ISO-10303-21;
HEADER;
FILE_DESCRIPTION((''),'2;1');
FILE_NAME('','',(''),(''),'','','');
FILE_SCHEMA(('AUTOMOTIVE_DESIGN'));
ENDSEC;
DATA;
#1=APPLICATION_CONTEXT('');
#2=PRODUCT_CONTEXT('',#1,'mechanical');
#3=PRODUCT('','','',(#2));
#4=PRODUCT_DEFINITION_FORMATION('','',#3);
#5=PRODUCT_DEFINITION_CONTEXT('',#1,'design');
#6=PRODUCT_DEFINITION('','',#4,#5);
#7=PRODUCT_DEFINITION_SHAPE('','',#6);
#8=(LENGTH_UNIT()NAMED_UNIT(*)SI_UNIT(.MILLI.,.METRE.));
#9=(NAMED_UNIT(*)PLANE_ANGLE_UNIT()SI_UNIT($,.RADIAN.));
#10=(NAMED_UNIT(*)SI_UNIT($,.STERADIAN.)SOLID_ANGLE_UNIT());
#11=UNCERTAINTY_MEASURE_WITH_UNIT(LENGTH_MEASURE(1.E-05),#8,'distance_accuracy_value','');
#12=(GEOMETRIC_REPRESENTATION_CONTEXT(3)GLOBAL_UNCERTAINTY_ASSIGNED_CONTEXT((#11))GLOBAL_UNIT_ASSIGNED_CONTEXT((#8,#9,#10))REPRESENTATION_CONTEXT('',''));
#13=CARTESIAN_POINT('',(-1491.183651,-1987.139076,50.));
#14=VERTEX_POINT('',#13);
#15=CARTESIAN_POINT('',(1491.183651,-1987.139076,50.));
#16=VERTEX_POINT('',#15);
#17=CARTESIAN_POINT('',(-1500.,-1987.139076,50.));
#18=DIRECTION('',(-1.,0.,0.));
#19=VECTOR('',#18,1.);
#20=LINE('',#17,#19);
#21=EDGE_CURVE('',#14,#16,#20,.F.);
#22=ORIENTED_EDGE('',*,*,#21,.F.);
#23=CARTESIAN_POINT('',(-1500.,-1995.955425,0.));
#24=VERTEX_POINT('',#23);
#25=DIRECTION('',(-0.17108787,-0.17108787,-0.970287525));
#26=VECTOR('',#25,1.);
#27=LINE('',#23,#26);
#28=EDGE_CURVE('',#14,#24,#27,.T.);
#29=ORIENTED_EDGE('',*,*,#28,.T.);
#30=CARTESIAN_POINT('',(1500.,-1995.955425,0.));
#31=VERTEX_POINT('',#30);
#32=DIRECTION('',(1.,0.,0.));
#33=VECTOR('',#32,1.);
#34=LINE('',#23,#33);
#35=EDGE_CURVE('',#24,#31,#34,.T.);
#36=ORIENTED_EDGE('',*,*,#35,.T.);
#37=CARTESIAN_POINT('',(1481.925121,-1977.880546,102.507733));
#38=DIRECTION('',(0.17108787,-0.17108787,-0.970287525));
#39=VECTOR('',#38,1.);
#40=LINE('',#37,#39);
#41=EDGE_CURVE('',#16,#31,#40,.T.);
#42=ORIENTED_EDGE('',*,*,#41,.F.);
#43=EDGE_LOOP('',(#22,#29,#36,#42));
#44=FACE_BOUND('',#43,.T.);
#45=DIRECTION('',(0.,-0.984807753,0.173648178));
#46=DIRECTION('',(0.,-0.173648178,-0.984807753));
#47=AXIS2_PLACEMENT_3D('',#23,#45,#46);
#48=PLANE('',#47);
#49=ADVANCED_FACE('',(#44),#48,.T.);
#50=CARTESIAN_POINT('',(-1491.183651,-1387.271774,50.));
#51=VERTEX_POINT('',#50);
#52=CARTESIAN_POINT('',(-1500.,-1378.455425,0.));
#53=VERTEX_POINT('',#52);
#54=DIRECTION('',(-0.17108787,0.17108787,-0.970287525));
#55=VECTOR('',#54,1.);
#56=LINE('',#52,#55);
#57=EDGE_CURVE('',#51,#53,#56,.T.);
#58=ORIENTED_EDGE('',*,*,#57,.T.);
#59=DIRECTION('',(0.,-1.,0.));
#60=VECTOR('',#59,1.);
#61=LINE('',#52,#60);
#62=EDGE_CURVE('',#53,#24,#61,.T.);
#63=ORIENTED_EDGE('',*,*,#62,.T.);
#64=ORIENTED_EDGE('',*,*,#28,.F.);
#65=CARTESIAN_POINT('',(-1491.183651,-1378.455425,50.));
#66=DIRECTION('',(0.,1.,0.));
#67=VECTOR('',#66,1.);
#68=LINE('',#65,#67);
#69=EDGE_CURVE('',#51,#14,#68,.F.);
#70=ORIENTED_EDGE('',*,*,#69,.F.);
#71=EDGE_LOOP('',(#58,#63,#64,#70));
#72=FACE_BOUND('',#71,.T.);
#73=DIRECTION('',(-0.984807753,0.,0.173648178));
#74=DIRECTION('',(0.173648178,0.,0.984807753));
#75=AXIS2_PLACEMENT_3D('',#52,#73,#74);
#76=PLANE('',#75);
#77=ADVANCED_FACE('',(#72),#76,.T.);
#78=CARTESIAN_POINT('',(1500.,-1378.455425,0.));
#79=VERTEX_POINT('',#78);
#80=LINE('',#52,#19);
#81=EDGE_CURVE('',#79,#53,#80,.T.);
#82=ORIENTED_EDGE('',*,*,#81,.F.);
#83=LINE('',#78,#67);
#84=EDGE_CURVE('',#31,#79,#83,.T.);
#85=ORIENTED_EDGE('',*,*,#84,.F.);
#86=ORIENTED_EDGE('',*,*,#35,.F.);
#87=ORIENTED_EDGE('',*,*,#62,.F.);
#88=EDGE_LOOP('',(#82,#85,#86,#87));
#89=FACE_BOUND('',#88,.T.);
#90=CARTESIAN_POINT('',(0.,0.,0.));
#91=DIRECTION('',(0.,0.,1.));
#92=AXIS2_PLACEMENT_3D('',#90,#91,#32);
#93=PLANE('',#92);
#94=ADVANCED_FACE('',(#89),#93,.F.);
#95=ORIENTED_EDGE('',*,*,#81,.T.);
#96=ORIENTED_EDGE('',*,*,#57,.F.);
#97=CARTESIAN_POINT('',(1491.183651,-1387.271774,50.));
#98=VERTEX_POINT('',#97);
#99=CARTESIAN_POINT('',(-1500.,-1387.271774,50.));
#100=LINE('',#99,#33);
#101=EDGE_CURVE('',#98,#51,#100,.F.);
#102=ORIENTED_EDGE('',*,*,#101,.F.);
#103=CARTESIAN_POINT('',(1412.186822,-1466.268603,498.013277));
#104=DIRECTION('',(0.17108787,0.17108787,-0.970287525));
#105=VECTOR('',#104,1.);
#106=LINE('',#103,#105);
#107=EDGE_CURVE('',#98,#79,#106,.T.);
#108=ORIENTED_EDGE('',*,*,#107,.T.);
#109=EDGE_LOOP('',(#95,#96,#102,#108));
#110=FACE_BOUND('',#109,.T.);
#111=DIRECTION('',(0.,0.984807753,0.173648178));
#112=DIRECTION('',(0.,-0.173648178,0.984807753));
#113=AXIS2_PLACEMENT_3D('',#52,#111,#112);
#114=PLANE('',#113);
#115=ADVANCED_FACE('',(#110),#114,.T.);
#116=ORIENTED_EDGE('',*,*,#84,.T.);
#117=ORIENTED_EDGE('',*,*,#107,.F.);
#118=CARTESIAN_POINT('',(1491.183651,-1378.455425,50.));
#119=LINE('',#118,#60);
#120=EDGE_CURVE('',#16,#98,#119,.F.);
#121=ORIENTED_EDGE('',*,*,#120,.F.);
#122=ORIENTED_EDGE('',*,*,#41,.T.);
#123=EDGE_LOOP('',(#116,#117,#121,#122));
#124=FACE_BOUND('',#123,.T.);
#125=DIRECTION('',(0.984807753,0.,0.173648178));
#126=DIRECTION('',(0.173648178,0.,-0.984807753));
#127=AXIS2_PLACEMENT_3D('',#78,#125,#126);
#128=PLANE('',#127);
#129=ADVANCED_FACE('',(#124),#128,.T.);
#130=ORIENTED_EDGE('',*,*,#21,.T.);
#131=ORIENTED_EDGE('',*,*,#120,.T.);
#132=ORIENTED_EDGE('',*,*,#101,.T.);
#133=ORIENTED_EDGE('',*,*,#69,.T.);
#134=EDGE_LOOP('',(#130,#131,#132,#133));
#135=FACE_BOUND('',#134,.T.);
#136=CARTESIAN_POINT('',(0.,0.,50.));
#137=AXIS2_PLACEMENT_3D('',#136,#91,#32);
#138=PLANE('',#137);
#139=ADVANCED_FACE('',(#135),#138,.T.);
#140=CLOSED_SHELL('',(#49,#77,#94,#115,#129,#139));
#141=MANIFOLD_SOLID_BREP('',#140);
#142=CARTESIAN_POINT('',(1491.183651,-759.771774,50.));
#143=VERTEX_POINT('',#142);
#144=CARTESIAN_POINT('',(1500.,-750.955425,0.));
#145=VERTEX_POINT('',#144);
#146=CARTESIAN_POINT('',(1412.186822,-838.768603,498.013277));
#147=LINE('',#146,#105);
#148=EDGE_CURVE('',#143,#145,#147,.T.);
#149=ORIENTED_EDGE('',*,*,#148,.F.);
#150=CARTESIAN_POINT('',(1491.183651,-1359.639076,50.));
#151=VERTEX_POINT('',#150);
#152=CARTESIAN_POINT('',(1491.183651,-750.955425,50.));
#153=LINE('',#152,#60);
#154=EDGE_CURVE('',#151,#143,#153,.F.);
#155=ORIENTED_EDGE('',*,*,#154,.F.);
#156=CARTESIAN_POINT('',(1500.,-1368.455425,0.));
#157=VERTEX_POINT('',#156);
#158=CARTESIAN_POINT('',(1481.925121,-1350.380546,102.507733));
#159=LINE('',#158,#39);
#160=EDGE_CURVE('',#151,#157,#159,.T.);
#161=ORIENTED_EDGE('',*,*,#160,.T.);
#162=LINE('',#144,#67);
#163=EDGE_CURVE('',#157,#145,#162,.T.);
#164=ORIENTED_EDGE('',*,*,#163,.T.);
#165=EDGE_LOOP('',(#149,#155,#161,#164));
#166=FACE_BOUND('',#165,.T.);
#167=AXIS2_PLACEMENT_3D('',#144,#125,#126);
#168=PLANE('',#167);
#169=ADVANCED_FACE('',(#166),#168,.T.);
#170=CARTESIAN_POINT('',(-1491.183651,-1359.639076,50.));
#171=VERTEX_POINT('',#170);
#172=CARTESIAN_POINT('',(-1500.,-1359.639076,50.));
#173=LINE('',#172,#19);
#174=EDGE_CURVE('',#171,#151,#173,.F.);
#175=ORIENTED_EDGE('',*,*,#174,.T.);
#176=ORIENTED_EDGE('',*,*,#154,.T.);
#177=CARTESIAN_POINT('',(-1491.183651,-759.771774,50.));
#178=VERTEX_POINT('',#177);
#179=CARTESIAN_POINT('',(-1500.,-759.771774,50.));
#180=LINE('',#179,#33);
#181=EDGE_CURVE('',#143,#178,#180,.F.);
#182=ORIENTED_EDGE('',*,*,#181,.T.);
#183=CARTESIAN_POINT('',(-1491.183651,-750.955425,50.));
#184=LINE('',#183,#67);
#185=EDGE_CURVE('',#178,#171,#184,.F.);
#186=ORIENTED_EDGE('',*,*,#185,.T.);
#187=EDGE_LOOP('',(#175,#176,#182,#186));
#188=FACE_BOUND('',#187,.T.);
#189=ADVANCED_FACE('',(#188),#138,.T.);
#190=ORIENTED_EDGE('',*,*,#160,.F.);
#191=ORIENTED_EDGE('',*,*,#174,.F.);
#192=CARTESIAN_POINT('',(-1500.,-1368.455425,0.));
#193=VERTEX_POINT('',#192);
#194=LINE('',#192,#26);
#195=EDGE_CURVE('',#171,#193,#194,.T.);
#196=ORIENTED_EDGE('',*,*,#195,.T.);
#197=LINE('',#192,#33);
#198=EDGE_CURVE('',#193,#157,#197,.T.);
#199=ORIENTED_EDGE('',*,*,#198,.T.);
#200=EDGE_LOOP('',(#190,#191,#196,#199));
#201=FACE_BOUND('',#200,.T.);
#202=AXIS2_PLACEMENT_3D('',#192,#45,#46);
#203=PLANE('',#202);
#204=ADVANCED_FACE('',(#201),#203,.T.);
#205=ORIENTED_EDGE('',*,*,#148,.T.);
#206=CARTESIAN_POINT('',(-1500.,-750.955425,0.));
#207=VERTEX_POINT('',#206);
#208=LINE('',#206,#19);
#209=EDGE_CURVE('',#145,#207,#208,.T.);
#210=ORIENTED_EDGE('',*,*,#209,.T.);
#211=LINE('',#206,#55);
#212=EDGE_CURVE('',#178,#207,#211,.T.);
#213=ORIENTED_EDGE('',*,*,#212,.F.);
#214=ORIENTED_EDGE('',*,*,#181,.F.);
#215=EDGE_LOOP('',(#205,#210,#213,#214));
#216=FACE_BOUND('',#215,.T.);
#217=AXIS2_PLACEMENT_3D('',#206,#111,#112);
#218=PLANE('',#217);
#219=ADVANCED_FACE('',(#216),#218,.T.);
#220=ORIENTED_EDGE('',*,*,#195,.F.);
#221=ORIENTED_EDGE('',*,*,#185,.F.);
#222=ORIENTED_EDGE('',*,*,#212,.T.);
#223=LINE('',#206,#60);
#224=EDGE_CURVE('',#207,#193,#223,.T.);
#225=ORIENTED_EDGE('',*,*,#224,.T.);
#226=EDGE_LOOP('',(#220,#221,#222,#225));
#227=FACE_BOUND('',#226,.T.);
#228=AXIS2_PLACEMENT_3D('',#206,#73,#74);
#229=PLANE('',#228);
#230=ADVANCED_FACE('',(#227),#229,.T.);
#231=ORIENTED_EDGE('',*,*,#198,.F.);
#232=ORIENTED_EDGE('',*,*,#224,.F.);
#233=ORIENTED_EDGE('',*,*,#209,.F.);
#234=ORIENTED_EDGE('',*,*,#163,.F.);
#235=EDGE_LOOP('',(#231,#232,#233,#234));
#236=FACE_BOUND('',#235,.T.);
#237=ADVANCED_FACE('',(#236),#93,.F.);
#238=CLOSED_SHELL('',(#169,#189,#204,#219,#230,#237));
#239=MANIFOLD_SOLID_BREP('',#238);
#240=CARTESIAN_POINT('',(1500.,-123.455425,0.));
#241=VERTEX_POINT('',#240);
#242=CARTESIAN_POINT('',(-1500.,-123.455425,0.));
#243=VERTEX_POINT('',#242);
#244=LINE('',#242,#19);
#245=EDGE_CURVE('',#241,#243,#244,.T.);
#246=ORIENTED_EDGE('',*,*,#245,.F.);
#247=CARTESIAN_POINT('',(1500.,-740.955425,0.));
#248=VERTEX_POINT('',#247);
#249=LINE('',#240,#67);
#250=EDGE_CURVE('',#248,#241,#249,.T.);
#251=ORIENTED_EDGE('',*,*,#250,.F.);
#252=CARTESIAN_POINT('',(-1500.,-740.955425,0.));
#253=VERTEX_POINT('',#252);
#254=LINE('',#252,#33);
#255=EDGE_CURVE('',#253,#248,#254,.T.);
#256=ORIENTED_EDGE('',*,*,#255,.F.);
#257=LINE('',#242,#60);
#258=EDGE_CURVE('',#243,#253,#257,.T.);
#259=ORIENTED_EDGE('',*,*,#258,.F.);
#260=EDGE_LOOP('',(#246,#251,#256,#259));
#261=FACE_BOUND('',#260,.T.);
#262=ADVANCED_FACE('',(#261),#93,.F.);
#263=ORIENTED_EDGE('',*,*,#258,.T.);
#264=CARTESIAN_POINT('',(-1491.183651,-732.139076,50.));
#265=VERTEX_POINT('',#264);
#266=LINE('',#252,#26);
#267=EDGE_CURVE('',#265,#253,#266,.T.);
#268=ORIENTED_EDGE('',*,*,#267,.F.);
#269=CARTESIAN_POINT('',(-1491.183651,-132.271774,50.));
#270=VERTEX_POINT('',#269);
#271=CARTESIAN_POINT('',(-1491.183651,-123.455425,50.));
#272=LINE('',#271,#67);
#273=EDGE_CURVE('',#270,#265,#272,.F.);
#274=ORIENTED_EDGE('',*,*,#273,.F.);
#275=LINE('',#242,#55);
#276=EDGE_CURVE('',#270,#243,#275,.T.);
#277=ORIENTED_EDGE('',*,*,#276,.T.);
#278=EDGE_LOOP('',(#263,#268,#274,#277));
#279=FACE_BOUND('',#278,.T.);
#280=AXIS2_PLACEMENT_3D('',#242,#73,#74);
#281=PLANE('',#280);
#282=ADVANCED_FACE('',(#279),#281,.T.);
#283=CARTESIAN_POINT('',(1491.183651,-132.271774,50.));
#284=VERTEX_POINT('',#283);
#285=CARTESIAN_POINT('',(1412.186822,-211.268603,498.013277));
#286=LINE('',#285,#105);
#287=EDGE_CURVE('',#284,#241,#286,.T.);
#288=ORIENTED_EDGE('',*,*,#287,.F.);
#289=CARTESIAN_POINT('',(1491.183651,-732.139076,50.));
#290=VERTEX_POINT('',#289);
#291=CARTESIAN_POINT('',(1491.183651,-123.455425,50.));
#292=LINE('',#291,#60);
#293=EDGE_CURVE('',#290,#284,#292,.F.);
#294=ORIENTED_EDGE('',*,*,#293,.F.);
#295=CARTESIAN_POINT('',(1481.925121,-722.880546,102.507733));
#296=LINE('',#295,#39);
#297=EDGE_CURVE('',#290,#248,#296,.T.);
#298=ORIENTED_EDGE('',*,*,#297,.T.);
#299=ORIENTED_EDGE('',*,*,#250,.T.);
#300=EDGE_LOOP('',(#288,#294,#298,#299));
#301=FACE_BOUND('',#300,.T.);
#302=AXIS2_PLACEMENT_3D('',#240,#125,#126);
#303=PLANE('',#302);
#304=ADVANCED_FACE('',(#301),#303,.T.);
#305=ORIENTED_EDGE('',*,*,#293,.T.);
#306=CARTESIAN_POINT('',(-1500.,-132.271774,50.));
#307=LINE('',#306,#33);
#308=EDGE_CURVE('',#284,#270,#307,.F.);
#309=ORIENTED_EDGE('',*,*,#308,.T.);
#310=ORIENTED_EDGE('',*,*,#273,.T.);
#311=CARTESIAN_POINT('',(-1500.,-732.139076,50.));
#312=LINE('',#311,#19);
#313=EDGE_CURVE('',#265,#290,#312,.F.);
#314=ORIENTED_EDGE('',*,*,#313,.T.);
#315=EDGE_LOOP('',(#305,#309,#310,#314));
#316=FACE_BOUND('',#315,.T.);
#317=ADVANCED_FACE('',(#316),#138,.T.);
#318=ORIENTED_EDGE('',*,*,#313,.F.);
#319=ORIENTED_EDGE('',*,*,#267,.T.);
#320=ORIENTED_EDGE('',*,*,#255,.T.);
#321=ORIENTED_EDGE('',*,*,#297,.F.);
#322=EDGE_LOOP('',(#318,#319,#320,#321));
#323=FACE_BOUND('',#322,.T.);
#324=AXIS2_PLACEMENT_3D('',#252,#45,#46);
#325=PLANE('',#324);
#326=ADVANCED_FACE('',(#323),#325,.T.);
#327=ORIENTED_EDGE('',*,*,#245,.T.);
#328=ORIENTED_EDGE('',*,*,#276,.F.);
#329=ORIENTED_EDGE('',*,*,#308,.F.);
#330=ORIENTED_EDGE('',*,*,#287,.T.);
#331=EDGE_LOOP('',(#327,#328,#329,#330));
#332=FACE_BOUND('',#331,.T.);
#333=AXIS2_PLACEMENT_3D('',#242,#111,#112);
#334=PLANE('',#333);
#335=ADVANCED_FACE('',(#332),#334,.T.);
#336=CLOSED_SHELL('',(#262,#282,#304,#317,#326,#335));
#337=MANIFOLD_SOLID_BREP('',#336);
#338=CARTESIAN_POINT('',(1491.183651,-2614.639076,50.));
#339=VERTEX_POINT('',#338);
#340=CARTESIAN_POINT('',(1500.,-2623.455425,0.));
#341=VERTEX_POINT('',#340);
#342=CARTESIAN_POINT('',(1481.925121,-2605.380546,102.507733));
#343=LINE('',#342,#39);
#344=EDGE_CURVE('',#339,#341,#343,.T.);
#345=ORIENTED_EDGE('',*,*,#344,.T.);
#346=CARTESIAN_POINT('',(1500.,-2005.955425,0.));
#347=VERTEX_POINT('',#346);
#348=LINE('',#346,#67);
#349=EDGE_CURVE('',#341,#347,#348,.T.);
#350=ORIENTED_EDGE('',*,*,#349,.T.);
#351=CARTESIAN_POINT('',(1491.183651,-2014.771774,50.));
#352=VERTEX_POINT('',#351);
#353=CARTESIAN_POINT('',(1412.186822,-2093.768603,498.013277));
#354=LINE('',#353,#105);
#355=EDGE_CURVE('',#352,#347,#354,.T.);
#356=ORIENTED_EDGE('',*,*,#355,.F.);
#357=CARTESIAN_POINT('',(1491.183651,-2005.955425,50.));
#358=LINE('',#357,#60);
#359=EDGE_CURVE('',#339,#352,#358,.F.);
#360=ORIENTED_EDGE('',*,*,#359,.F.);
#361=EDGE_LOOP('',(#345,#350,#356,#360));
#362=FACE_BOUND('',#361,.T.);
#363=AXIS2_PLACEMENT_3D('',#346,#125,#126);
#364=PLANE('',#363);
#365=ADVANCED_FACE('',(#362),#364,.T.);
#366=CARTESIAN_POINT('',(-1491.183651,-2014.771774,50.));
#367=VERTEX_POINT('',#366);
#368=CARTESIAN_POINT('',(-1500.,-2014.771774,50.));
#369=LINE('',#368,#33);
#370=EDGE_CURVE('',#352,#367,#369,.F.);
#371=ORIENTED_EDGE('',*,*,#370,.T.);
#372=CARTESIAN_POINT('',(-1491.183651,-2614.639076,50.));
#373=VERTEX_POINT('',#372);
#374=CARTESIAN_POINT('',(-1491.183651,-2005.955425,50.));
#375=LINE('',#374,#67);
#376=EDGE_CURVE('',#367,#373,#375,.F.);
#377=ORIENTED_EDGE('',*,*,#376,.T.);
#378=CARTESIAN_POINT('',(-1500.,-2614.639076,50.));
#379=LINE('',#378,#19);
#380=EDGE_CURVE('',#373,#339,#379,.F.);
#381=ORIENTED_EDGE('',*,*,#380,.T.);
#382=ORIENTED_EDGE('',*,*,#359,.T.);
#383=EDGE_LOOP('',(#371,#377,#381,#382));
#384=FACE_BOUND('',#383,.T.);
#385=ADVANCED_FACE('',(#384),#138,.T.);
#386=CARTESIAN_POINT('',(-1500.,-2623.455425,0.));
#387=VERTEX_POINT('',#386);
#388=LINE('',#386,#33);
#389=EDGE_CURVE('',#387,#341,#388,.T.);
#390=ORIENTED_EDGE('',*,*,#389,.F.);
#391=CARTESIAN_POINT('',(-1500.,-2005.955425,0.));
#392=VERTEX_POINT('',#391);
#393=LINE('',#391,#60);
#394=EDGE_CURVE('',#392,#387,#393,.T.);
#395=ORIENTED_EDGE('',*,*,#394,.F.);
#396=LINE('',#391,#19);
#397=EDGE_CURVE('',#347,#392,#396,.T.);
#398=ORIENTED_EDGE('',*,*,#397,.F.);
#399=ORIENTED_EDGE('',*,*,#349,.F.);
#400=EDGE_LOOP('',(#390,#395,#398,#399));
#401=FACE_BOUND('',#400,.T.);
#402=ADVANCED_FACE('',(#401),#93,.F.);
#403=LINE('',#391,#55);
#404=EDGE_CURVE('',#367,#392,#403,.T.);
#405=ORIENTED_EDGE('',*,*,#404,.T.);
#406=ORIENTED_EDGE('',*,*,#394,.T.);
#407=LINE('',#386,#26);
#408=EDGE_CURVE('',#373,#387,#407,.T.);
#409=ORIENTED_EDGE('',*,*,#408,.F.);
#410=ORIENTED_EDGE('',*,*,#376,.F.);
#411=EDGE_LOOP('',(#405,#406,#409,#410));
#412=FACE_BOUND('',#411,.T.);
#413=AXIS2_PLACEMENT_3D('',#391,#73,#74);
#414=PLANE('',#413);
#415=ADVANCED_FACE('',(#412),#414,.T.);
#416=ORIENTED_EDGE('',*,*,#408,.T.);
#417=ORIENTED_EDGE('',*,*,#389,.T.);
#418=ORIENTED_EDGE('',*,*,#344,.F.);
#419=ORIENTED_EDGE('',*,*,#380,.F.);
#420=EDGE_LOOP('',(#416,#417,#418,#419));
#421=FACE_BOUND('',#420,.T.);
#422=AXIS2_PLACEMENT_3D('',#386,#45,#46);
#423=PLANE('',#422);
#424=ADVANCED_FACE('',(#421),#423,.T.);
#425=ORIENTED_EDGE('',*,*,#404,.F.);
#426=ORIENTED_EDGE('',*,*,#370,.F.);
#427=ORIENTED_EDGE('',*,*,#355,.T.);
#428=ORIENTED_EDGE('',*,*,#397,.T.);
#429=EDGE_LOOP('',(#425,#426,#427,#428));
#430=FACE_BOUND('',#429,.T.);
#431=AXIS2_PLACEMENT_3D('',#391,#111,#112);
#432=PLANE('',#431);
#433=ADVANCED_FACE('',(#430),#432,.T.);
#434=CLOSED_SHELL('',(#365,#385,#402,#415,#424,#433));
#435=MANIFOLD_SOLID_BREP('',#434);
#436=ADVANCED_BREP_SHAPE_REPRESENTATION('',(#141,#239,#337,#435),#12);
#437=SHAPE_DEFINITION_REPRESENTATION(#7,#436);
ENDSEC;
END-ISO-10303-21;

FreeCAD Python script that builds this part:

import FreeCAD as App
import Part
import Sketcher
from FreeCAD import Vector


def faces_at(feature, points):
    """Names of the faces that lie closest to the given points."""
    faces = feature.Shape.Faces
    near = lambda p: min(range(len(faces)), key=lambda i: faces[i].distToShape(Part.Vertex(*p))[0])
    return sorted({f"Face{near(p) + 1}" for p in points})

doc = App.newDocument("Part")
body = doc.addObject("PartDesign::Body", "Body")

sketch1 = body.newObject("Sketcher::SketchObject", "Sketch")
sketch1.AttachmentSupport = (doc.getObject("XY_Plane"), [""])
sketch1.MapMode = "FlatFace"
sketch1.addGeometry([
    Part.LineSegment(Vector(-1500, -123, 0), Vector(-1500, -741, 0)),
    Part.LineSegment(Vector(-1500, -741, 0), Vector(1500, -741, 0)),
    Part.LineSegment(Vector(1500, -741, 0), Vector(1500, -123, 0)),
    Part.LineSegment(Vector(1500, -123, 0), Vector(-1500, -123, 0)),
], False)
sketch1.addConstraint([
    Sketcher.Constraint("Coincident", 0, 2, 1, 1),
    Sketcher.Constraint("Coincident", 1, 2, 2, 1),
    Sketcher.Constraint("Coincident", 2, 2, 3, 1),
    Sketcher.Constraint("Coincident", 3, 2, 0, 1),
    Sketcher.Constraint("Vertical", 0),
    Sketcher.Constraint("Horizontal", 1),
    Sketcher.Constraint("Vertical", 2),
    Sketcher.Constraint("Horizontal", 3),
    Sketcher.Constraint("DistanceX", 1, 1, 1, 2, 3000.0),
    Sketcher.Constraint("DistanceY", 0, 2, 0, 1, 617.5),
    Sketcher.Constraint("DistanceX", 0, 2, -1, 1, 1500.0),
    Sketcher.Constraint("DistanceY", 0, 2, -1, 1, 740.955425),
])
pad1 = body.newObject("PartDesign::Pad", "Pad")
pad1.Profile = sketch1
pad1.Length = 50
doc.recompute()

draft = body.newObject("PartDesign::Draft", "Draft")
draft.Base = (pad1, faces_at(pad1, [
    (-1500, -432.205, 25),
    (0, -740.955, 25),
    (1500, -432.205, 25),
    (0, -123.455, 25),
]))
draft.NeutralPlane = (doc.getObject("XY_Plane"), [""])
draft.Angle = 10
draft.Reversed = False
body2 = doc.addObject("PartDesign::Body", "Body001")

sketch2 = body2.newObject("Sketcher::SketchObject", "Sketch001")
sketch2.AttachmentSupport = (doc.getObject("XY_Plane001"), [""])
sketch2.MapMode = "FlatFace"
sketch2.addGeometry([
    Part.LineSegment(Vector(-1500, -751, 0), Vector(-1500, -1368, 0)),
    Part.LineSegment(Vector(-1500, -1368, 0), Vector(1500, -1368, 0)),
    Part.LineSegment(Vector(1500, -1368, 0), Vector(1500, -751, 0)),
    Part.LineSegment(Vector(1500, -751, 0), Vector(-1500, -751, 0)),
], False)
sketch2.addConstraint([
    Sketcher.Constraint("Coincident", 0, 2, 1, 1),
    Sketcher.Constraint("Coincident", 1, 2, 2, 1),
    Sketcher.Constraint("Coincident", 2, 2, 3, 1),
    Sketcher.Constraint("Coincident", 3, 2, 0, 1),
    Sketcher.Constraint("Vertical", 0),
    Sketcher.Constraint("Horizontal", 1),
    Sketcher.Constraint("Vertical", 2),
    Sketcher.Constraint("Horizontal", 3),
    Sketcher.Constraint("DistanceX", 1, 1, 1, 2, 3000.0),
    Sketcher.Constraint("DistanceY", 0, 2, 0, 1, 617.5),
    Sketcher.Constraint("DistanceX", 0, 2, -1, 1, 1500.0),
    Sketcher.Constraint("DistanceY", 0, 2, -1, 1, 1368.455425),
])
pad2 = body2.newObject("PartDesign::Pad", "Pad001")
pad2.Profile = sketch2
pad2.Length = 50
doc.recompute()

draft2 = body2.newObject("PartDesign::Draft", "Draft001")
draft2.Base = (pad2, faces_at(pad2, [
    (-1500, -1059.705, 25),
    (0, -1368.455, 25),
    (1500, -1059.705, 25),
    (0, -750.955, 25),
]))
draft2.NeutralPlane = (doc.getObject("XY_Plane001"), [""])
draft2.Angle = 10
draft2.Reversed = False
body3 = doc.addObject("PartDesign::Body", "Body002")

sketch3 = body3.newObject("Sketcher::SketchObject", "Sketch002")
sketch3.AttachmentSupport = (doc.getObject("XY_Plane002"), [""])
sketch3.MapMode = "FlatFace"
sketch3.addGeometry([
    Part.LineSegment(Vector(-1500, -1378, 0), Vector(-1500, -1996, 0)),
    Part.LineSegment(Vector(-1500, -1996, 0), Vector(1500, -1996, 0)),
    Part.LineSegment(Vector(1500, -1996, 0), Vector(1500, -1378, 0)),
    Part.LineSegment(Vector(1500, -1378, 0), Vector(-1500, -1378, 0)),
], False)
sketch3.addConstraint([
    Sketcher.Constraint("Coincident", 0, 2, 1, 1),
    Sketcher.Constraint("Coincident", 1, 2, 2, 1),
    Sketcher.Constraint("Coincident", 2, 2, 3, 1),
    Sketcher.Constraint("Coincident", 3, 2, 0, 1),
    Sketcher.Constraint("Vertical", 0),
    Sketcher.Constraint("Horizontal", 1),
    Sketcher.Constraint("Vertical", 2),
    Sketcher.Constraint("Horizontal", 3),
    Sketcher.Constraint("DistanceX", 1, 1, 1, 2, 3000.0),
    Sketcher.Constraint("DistanceY", 0, 2, 0, 1, 617.5),
    Sketcher.Constraint("DistanceX", 0, 2, -1, 1, 1500.0),
    Sketcher.Constraint("DistanceY", 0, 2, -1, 1, 1995.955425),
])
pad3 = body3.newObject("PartDesign::Pad", "Pad002")
pad3.Profile = sketch3
pad3.Length = 50
doc.recompute()

draft3 = body3.newObject("PartDesign::Draft", "Draft002")
draft3.Base = (pad3, faces_at(pad3, [
    (-1500, -1687.205, 25),
    (0, -1995.955, 25),
    (1500, -1687.205, 25),
    (0, -1378.455, 25),
]))
draft3.NeutralPlane = (doc.getObject("XY_Plane002"), [""])
draft3.Angle = 10
draft3.Reversed = False
body4 = doc.addObject("PartDesign::Body", "Body003")

sketch4 = body4.newObject("Sketcher::SketchObject", "Sketch003")
sketch4.AttachmentSupport = (doc.getObject("XY_Plane003"), [""])
sketch4.MapMode = "FlatFace"
sketch4.addGeometry([
    Part.LineSegment(Vector(-1500, -2006, 0), Vector(-1500, -2623, 0)),
    Part.LineSegment(Vector(-1500, -2623, 0), Vector(1500, -2623, 0)),
    Part.LineSegment(Vector(1500, -2623, 0), Vector(1500, -2006, 0)),
    Part.LineSegment(Vector(1500, -2006, 0), Vector(-1500, -2006, 0)),
], False)
sketch4.addConstraint([
    Sketcher.Constraint("Coincident", 0, 2, 1, 1),
    Sketcher.Constraint("Coincident", 1, 2, 2, 1),
    Sketcher.Constraint("Coincident", 2, 2, 3, 1),
    Sketcher.Constraint("Coincident", 3, 2, 0, 1),
    Sketcher.Constraint("Vertical", 0),
    Sketcher.Constraint("Horizontal", 1),
    Sketcher.Constraint("Vertical", 2),
    Sketcher.Constraint("Horizontal", 3),
    Sketcher.Constraint("DistanceX", 1, 1, 1, 2, 3000.0),
    Sketcher.Constraint("DistanceY", 0, 2, 0, 1, 617.5),
    Sketcher.Constraint("DistanceX", 0, 2, -1, 1, 1500.0),
    Sketcher.Constraint("DistanceY", 0, 2, -1, 1, 2623.455425),
])
pad4 = body4.newObject("PartDesign::Pad", "Pad003")
pad4.Profile = sketch4
pad4.Length = 50
doc.recompute()

draft4 = body4.newObject("PartDesign::Draft", "Draft003")
draft4.Base = (pad4, faces_at(pad4, [
    (-1500, -2314.705, 25),
    (0, -2623.455, 25),
    (1500, -2314.705, 25),
    (0, -2005.955, 25),
]))
draft4.NeutralPlane = (doc.getObject("XY_Plane003"), [""])
draft4.Angle = 10
draft4.Reversed = False

doc.recompute()
